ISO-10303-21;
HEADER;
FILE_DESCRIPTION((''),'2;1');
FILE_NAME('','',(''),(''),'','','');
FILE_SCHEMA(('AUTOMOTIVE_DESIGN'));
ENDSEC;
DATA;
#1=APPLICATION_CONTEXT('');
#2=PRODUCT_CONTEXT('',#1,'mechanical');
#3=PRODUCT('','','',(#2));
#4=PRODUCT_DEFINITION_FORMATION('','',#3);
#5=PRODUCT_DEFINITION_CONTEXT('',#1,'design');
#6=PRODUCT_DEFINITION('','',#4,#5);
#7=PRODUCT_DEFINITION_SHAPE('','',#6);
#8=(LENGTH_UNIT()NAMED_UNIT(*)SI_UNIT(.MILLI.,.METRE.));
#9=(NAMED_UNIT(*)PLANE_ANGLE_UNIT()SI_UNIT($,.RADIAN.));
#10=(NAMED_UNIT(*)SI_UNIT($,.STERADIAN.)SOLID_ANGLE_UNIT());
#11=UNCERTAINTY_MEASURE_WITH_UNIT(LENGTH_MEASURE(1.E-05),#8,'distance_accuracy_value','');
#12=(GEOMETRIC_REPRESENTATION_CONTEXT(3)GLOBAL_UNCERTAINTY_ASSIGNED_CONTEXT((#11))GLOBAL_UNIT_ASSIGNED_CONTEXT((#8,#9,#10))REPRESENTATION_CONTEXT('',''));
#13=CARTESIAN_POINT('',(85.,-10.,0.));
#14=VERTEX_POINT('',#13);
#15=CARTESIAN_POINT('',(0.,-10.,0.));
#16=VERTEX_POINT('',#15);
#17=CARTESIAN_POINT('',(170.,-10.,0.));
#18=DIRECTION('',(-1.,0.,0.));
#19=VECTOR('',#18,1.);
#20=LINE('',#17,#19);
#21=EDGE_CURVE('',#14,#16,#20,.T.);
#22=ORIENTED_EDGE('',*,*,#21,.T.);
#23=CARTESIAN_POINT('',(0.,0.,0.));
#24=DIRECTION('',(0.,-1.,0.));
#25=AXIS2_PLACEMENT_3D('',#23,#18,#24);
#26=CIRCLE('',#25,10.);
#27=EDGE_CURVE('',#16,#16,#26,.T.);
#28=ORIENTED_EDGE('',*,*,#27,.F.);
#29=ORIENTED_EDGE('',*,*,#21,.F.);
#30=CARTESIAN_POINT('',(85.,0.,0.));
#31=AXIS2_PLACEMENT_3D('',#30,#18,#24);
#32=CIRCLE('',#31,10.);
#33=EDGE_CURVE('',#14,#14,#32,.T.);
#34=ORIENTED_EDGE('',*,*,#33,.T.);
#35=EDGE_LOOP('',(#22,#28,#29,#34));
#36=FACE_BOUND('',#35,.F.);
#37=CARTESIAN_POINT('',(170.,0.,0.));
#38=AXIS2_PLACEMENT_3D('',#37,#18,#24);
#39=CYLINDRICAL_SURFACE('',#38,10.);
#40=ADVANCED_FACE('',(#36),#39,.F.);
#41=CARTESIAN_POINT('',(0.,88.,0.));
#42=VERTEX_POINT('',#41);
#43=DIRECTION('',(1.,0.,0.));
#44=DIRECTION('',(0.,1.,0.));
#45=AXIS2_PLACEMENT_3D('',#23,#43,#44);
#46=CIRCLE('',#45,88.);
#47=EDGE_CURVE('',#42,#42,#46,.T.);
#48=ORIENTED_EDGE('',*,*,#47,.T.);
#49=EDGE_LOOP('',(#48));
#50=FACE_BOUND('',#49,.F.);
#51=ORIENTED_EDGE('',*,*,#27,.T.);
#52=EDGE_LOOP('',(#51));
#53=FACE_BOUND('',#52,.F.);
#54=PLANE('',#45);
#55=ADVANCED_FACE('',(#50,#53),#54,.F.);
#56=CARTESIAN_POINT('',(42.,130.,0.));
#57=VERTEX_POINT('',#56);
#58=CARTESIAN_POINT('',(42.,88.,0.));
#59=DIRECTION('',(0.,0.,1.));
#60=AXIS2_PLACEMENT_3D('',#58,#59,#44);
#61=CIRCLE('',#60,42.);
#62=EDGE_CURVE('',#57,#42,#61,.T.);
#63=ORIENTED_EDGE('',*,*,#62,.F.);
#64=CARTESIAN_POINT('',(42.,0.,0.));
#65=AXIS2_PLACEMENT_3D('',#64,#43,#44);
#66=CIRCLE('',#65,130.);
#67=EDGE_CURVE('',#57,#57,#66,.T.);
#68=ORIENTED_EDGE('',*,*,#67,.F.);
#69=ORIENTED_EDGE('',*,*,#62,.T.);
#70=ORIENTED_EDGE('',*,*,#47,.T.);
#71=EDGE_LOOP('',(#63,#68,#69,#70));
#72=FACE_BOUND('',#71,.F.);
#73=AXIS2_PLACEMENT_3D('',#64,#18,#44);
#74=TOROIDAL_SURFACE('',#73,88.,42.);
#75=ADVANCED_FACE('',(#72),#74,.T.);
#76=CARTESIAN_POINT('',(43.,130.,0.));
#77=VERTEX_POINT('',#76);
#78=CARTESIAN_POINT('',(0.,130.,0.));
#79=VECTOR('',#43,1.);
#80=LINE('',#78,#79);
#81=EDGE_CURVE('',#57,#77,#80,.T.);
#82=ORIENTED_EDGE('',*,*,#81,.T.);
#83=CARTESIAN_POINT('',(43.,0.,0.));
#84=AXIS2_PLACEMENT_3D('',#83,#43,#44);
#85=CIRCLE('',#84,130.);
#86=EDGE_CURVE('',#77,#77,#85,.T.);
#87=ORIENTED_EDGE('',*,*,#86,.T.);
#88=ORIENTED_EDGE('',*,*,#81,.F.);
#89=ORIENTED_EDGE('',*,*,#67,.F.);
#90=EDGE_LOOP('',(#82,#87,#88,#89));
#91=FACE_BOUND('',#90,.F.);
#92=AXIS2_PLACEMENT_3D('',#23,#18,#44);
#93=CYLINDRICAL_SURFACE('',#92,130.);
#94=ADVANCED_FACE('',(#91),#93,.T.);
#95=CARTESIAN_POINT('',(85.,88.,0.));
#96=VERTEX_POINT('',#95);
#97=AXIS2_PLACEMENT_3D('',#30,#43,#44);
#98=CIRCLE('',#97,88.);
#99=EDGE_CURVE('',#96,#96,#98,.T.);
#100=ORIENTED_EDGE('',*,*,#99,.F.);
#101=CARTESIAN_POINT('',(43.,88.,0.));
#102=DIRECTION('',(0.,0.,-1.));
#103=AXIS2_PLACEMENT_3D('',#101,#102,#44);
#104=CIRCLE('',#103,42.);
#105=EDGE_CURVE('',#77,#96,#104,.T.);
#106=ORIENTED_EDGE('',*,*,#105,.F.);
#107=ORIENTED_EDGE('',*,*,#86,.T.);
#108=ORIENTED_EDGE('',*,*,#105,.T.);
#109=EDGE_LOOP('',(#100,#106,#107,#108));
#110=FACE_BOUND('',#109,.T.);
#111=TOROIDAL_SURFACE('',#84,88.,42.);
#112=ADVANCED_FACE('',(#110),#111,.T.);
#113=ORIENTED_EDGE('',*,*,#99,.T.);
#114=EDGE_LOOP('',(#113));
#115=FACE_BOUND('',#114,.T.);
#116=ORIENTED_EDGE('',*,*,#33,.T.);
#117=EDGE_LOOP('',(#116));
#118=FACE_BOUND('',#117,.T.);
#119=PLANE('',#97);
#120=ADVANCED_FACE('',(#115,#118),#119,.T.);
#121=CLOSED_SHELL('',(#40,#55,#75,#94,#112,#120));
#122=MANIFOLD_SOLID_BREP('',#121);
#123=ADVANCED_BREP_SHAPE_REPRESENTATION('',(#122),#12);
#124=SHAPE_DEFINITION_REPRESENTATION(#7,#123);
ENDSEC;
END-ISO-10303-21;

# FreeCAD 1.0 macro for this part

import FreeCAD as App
import Part
import Sketcher

V = App.Vector


def edges_at(feature, points):
    """Names of the edges that pass closest to the given points."""
    edges = feature.Shape.Edges
    near = lambda p: min(range(len(edges)), key=lambda i: edges[i].distToShape(Part.Vertex(*p))[0])
    return sorted({f"Edge{near(p) + 1}" for p in points})

doc = App.newDocument("Part")
body = doc.addObject("PartDesign::Body", "Body")

# Sketch on YZ plane
sketch1 = body.newObject("Sketcher::SketchObject", "Sketch")
sketch1.AttachmentSupport = (doc.getObject("YZ_Plane"), [""])
sketch1.MapMode = "FlatFace"
sketch1.addGeometry(Part.Circle(V(0, 0, 0), V(0, 0, 1), 130), False)
sketch1.addConstraint([
    Sketcher.Constraint("Coincident", 0, 3, -1, 1),
    Sketcher.Constraint("Diameter", 0, 260.0),
])
pad1 = body.newObject("PartDesign::Pad", "Pad")
pad1.Profile = sketch1
pad1.Length = 85

# Sketch on YZ plane
sketch2 = body.newObject("Sketcher::SketchObject", "Sketch001")
sketch2.AttachmentSupport = (doc.getObject("YZ_Plane"), [""])
sketch2.MapMode = "FlatFace"
sketch2.AttachmentOffset = App.Placement(V(0, 0, 85), App.Rotation())
sketch2.addGeometry(Part.Circle(V(0, 0, 0), V(0, 0, 1), 10), False)
sketch2.addConstraint([
    Sketcher.Constraint("Coincident", 0, 3, -1, 1),
    Sketcher.Constraint("Diameter", 0, 20.0),
])
doc.recompute()
hole = body.newObject("PartDesign::Hole", "Hole")
hole.Profile = sketch2
hole.ThreadType = "None"
hole.Diameter = 20
hole.DepthType = "Dimension"
hole.Depth = 85
hole.DrillPoint = "Flat"
doc.recompute()

fillet = body.newObject("PartDesign::Fillet", "Fillet")
fillet.Base = (hole, edges_at(hole, [(0, -130, 0), (85, -130, 0)]))
fillet.Radius = 42

doc.recompute()
